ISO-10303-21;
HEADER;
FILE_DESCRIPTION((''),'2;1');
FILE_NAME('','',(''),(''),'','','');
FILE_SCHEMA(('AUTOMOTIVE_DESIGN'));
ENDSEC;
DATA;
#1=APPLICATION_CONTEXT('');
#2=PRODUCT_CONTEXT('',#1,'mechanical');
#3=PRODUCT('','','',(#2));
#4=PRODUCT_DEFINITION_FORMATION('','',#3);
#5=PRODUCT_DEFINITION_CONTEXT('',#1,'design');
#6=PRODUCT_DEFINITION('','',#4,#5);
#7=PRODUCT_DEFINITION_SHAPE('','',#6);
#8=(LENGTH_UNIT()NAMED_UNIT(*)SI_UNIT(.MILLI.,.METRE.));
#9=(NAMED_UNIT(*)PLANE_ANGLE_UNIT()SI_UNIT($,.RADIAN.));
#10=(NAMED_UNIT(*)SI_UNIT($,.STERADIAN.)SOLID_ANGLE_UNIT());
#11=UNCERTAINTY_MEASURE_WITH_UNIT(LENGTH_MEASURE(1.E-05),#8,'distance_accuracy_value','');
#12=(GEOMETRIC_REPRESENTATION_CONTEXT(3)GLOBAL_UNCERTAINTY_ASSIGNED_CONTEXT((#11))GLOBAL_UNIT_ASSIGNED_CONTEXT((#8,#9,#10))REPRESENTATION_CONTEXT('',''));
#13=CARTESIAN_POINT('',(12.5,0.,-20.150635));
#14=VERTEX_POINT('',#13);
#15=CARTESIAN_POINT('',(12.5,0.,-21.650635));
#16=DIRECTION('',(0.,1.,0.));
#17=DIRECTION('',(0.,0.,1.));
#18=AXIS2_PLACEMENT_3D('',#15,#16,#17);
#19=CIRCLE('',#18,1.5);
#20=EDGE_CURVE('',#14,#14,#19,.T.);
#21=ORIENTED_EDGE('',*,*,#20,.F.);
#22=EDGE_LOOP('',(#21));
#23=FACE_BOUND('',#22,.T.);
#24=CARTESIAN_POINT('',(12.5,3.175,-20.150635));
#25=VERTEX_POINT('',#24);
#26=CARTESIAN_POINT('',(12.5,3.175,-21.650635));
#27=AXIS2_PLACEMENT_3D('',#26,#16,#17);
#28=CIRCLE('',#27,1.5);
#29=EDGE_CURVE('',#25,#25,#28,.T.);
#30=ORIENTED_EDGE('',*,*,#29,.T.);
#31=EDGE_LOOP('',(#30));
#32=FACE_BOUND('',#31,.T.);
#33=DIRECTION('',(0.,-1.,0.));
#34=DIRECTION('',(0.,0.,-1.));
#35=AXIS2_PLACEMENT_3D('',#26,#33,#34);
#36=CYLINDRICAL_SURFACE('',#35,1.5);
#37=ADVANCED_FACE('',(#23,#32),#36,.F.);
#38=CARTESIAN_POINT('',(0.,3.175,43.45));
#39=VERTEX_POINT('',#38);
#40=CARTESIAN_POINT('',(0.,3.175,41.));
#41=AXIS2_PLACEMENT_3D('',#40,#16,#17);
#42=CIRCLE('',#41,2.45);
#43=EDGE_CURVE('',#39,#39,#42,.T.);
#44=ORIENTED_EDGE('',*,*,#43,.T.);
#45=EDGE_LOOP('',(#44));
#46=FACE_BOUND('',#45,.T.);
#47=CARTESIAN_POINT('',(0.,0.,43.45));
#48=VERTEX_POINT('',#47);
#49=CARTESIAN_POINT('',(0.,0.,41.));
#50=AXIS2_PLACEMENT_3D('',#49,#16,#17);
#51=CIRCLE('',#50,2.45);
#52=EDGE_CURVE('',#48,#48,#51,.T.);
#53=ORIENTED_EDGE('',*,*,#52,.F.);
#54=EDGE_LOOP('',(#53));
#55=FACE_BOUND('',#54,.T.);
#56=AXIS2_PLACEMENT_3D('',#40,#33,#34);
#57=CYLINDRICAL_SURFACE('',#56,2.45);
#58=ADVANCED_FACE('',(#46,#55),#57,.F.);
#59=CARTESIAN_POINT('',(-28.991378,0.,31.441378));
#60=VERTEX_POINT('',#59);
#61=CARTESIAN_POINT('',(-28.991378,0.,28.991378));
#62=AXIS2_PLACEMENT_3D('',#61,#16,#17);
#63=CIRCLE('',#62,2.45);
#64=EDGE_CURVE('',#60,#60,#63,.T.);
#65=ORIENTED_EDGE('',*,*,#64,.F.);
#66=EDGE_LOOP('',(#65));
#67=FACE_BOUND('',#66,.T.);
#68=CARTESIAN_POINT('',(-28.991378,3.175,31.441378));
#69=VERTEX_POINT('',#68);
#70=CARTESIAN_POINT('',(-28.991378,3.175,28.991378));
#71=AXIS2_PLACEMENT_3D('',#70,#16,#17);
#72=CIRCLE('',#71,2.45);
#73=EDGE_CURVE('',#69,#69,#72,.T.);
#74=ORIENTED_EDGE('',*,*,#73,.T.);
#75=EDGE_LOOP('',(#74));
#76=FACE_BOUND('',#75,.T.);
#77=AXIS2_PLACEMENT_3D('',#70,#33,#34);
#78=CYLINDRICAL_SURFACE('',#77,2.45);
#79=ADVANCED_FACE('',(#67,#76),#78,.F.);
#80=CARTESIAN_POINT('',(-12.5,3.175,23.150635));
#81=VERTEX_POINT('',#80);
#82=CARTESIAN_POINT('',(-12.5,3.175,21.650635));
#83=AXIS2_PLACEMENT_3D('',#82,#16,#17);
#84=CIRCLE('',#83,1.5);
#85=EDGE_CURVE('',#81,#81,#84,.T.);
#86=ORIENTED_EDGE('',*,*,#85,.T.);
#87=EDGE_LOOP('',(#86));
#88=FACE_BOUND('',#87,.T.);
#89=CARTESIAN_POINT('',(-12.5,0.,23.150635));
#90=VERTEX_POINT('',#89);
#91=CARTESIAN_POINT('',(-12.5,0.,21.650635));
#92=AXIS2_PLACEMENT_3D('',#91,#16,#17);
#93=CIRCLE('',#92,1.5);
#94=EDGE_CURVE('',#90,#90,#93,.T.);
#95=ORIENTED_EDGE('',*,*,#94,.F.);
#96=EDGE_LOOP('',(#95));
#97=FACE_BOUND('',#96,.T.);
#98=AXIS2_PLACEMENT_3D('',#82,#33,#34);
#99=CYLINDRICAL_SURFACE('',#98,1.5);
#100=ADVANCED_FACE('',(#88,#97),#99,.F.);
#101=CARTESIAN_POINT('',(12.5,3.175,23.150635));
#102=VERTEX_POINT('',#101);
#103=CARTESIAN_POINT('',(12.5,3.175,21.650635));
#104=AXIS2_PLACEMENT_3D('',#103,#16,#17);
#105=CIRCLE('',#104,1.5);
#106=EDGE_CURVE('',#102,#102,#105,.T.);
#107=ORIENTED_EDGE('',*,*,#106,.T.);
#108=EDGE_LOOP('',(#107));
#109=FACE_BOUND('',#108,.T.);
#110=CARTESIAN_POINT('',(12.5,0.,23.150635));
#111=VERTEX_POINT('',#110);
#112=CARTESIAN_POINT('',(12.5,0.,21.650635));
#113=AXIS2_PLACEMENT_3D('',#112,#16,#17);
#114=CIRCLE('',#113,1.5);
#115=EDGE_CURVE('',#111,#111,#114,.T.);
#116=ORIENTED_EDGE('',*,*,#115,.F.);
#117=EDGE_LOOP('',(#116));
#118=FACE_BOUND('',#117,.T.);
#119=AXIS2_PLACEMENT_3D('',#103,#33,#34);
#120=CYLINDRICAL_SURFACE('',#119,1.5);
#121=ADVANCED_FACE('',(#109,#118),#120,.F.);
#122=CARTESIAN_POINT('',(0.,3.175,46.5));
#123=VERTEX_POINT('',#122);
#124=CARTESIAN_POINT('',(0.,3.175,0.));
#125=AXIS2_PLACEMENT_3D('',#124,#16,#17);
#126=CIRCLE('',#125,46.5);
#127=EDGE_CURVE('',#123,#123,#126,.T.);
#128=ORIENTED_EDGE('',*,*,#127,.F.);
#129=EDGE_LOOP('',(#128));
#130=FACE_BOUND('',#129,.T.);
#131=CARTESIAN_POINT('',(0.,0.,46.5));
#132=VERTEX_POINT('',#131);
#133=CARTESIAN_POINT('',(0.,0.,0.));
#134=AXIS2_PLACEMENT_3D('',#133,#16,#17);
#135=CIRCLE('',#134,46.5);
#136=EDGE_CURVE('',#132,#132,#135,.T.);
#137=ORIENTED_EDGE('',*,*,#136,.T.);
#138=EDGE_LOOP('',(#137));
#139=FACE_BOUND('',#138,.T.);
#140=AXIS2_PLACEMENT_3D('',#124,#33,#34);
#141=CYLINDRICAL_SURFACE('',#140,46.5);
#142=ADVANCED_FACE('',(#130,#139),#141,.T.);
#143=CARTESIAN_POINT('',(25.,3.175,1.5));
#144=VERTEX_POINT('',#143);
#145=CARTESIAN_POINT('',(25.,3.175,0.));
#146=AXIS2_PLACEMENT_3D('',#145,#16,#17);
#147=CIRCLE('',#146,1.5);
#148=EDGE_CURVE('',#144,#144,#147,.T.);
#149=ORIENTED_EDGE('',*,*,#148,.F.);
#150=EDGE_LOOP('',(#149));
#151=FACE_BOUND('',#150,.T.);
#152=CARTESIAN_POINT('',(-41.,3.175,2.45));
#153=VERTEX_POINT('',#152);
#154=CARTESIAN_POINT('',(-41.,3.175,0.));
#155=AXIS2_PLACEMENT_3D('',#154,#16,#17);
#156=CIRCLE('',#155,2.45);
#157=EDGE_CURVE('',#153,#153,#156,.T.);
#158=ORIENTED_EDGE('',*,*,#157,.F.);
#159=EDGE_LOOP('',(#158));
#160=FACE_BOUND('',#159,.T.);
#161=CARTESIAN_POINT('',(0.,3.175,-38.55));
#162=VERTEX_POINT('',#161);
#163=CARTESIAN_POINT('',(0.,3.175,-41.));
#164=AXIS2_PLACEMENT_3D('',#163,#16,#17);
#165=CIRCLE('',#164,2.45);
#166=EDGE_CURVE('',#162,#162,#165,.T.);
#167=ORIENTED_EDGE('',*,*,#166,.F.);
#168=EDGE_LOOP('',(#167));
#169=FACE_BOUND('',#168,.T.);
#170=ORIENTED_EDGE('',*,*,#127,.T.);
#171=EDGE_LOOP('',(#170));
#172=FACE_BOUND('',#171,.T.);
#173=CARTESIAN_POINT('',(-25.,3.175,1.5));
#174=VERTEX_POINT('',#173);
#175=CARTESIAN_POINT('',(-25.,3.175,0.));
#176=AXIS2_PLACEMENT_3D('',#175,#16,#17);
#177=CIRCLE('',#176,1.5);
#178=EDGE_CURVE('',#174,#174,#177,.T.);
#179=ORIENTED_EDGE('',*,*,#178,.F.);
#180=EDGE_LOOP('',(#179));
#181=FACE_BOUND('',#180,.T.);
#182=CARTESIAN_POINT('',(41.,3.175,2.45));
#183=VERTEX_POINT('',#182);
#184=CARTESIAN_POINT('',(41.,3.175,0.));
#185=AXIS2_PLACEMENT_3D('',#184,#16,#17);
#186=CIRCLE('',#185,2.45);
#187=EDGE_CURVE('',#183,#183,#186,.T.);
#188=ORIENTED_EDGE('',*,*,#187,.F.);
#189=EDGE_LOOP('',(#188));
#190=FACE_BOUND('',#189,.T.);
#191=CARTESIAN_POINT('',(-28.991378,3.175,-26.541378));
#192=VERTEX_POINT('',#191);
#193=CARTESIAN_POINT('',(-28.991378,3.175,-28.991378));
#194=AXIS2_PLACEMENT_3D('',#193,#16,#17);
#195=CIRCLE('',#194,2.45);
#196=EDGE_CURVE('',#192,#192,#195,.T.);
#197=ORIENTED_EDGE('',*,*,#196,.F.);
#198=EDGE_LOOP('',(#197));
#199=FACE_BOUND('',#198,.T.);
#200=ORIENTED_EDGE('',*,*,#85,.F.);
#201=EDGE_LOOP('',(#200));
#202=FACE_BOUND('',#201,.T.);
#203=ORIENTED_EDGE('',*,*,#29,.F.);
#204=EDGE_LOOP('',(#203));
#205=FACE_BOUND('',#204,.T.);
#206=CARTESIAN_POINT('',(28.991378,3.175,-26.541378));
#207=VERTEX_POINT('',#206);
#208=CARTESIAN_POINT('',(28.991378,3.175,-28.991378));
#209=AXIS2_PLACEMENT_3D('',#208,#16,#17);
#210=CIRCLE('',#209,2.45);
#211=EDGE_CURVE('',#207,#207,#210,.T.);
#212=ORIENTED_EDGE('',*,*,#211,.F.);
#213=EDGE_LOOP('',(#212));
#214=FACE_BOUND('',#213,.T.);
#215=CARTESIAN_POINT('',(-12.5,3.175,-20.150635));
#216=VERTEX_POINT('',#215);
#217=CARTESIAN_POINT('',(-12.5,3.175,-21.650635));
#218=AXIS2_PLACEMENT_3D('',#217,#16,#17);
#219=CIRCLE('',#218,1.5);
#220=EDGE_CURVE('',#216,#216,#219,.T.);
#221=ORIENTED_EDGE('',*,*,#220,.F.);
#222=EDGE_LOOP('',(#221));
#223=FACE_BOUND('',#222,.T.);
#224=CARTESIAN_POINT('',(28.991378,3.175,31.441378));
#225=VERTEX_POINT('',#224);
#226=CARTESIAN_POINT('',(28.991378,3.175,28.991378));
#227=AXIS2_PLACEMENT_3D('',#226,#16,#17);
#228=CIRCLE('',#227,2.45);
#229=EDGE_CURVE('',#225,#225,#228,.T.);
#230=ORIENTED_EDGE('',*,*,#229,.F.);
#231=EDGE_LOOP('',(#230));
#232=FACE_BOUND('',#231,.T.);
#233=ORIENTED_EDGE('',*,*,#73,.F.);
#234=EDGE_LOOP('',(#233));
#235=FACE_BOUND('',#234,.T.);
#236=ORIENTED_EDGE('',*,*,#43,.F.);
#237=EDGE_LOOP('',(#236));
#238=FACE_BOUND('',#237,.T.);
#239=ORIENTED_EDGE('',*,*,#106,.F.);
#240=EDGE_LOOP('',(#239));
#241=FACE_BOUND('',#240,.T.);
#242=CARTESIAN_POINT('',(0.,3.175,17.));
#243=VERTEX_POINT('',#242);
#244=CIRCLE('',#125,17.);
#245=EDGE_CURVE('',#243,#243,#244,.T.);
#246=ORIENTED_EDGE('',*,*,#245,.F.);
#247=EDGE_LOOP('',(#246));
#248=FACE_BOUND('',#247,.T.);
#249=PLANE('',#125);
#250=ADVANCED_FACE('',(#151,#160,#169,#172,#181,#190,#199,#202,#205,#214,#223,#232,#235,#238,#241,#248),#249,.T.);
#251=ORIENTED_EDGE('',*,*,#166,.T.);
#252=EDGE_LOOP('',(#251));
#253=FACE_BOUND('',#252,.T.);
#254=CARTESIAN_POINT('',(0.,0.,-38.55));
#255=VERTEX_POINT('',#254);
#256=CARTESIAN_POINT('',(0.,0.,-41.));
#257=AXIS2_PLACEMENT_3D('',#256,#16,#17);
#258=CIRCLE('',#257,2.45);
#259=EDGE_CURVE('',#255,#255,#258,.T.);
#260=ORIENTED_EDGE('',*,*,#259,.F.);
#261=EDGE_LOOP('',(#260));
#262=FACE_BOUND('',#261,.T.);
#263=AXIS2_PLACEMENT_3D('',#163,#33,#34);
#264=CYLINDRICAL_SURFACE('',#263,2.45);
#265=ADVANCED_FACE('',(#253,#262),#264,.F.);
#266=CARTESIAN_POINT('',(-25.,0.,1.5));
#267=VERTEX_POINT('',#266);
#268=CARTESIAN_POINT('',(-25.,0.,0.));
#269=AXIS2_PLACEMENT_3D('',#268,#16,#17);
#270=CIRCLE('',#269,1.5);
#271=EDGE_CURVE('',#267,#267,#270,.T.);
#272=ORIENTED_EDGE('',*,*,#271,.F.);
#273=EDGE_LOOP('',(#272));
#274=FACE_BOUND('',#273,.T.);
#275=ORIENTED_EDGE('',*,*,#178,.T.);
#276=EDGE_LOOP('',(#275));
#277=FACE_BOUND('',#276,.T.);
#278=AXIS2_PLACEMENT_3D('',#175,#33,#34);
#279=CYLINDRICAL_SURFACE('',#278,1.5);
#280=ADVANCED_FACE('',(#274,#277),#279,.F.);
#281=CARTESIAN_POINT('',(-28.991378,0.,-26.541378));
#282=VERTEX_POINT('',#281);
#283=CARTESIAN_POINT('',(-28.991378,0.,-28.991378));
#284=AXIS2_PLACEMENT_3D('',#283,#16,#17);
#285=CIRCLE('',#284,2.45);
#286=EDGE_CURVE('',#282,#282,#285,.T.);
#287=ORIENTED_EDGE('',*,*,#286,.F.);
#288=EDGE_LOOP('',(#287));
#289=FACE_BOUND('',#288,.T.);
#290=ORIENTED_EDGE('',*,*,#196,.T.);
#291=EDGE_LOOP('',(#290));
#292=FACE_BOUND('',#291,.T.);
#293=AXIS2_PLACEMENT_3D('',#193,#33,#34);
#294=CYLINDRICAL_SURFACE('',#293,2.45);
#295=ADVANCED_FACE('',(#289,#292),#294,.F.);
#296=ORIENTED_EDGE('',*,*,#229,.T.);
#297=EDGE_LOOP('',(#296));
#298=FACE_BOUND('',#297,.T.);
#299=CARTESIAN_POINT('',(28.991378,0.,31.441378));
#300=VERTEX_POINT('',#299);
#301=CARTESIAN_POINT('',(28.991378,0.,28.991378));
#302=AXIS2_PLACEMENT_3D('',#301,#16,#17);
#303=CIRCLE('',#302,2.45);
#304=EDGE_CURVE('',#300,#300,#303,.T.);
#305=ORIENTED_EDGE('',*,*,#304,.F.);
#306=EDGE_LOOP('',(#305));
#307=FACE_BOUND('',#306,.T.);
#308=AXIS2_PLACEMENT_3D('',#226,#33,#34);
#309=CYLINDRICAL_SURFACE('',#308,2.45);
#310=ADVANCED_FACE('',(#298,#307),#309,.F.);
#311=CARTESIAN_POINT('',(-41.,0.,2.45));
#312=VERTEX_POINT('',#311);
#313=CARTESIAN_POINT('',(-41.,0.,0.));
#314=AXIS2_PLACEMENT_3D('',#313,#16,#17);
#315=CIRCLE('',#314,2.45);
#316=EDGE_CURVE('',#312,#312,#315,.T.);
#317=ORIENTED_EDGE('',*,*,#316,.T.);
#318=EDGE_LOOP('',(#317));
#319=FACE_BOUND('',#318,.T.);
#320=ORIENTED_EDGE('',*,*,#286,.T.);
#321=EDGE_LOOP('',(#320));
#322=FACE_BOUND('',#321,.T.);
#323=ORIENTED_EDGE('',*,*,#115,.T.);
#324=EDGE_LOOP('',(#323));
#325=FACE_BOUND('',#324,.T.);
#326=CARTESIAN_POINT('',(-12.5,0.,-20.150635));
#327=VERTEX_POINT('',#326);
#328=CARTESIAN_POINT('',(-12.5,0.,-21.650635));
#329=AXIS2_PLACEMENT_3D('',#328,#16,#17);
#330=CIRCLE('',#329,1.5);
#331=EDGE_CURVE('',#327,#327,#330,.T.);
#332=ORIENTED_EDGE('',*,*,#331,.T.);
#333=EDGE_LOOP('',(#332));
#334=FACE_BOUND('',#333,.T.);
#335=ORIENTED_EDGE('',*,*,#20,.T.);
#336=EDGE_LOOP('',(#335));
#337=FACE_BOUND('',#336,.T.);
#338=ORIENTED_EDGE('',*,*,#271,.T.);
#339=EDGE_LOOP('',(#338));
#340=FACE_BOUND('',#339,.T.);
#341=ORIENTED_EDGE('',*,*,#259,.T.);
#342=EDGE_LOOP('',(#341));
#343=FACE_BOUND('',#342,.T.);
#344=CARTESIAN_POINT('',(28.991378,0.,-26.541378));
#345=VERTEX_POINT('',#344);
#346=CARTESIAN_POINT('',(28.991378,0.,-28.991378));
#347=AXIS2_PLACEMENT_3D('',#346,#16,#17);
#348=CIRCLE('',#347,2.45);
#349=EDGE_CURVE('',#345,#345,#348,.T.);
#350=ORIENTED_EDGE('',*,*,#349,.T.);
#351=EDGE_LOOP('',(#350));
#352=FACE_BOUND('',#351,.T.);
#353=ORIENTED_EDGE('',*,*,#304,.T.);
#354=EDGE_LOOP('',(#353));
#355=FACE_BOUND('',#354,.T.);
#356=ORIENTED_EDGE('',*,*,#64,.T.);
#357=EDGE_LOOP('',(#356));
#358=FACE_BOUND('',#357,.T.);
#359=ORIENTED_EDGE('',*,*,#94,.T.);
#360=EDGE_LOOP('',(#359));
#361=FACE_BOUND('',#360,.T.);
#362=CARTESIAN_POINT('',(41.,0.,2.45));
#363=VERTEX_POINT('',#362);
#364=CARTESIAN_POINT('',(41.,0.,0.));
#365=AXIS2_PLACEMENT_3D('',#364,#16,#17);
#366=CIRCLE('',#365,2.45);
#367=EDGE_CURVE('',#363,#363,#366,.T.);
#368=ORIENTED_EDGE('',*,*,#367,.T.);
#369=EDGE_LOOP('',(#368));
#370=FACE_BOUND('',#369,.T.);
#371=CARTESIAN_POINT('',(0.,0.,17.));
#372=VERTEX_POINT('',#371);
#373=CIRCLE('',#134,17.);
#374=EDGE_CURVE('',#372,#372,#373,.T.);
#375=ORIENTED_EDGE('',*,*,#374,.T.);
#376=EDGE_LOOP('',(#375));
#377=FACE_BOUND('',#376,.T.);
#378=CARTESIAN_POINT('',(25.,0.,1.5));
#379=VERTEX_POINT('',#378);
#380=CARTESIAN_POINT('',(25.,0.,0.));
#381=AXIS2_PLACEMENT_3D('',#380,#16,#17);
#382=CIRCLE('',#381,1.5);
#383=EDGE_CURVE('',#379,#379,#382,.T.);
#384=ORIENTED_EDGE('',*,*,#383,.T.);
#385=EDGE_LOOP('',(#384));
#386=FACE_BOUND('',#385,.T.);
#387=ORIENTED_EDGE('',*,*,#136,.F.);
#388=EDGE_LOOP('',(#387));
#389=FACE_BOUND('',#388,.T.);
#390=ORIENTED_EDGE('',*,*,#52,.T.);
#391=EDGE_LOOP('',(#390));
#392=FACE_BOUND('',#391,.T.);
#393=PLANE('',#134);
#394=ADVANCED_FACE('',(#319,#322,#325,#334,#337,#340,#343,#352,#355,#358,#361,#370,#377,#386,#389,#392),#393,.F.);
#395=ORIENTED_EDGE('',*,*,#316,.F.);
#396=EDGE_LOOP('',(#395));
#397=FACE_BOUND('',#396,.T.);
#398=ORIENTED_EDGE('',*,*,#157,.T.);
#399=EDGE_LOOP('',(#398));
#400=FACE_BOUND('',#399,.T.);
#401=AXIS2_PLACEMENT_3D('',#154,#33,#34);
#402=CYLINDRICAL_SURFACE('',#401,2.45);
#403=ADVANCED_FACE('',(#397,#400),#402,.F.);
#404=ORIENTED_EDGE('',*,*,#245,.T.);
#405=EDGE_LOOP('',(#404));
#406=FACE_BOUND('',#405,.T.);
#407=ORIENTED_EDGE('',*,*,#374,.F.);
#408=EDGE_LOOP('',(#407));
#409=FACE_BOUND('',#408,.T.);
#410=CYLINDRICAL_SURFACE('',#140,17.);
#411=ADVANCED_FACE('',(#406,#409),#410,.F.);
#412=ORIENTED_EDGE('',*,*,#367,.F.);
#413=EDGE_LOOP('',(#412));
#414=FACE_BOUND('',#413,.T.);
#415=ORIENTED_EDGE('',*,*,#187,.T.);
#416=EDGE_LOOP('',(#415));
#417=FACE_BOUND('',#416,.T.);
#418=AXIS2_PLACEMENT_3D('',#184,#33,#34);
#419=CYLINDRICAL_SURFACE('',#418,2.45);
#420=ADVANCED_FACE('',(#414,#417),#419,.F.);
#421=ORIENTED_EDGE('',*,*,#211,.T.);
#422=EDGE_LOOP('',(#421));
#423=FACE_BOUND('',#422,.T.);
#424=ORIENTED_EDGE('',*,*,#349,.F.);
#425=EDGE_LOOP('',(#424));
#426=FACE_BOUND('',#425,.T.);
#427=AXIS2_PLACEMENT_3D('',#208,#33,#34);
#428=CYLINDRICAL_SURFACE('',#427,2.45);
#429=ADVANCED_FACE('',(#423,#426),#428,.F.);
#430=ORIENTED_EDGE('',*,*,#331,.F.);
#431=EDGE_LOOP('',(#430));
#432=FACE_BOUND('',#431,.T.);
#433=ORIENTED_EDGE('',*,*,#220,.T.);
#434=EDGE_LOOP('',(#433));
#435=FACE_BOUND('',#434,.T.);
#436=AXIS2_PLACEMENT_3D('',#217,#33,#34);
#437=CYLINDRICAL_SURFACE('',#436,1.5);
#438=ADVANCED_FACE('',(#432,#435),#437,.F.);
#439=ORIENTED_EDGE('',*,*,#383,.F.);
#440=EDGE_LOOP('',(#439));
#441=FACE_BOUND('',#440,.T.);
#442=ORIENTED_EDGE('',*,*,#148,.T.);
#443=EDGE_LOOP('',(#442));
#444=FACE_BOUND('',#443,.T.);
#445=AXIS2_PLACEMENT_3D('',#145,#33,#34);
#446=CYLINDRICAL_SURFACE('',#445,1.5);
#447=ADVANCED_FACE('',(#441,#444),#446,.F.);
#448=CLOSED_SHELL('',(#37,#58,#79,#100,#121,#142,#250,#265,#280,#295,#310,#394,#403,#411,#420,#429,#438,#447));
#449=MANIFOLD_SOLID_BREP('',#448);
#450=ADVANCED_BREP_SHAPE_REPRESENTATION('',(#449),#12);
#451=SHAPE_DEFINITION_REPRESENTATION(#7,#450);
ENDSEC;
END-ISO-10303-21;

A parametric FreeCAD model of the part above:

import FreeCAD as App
import Part
import Sketcher
from FreeCAD import Vector

doc = App.newDocument("Part")
body = doc.addObject("PartDesign::Body", "Body")

sketch1 = body.newObject("Sketcher::SketchObject", "Sketch")
sketch1.AttachmentSupport = (doc.getObject("XZ_Plane"), [""])
sketch1.MapMode = "FlatFace"
sketch1.addGeometry([
    Part.Circle(Vector(0, 0, 0), Vector(0, 0, 1), 46.5),
    Part.Circle(Vector(-29, -29, 0), Vector(0, 0, 1), 2.5),
    Part.Circle(Vector(0, -41, 0), Vector(0, 0, 1), 2.5),
    Part.Circle(Vector(-12.5, -21.7, 0), Vector(0, 0, 1), 1.5),
    Part.Circle(Vector(-41, 0, 0), Vector(0, 0, 1), 2.5),
    Part.Circle(Vector(-25, 0, 0), Vector(0, 0, 1), 1.5),
    Part.Circle(Vector(-29, 29, 0), Vector(0, 0, 1), 2.5),
    Part.Circle(Vector(-12.5, 21.7, 0), Vector(0, 0, 1), 1.5),
    Part.Circle(Vector(12.5, -21.7, 0), Vector(0, 0, 1), 1.5),
    Part.Circle(Vector(29, -29, 0), Vector(0, 0, 1), 2.5),
    Part.Circle(Vector(25, 0, 0), Vector(0, 0, 1), 1.5),
    Part.Circle(Vector(41, 0, 0), Vector(0, 0, 1), 2.5),
    Part.Circle(Vector(0, 0, 0), Vector(0, 0, 1), 17),
    Part.Circle(Vector(12.5, 21.7, 0), Vector(0, 0, 1), 1.5),
    Part.Circle(Vector(0, 41, 0), Vector(0, 0, 1), 2.5),
    Part.Circle(Vector(29, 29, 0), Vector(0, 0, 1), 2.5),
], False)
sketch1.addConstraint([
    Sketcher.Constraint("Coincident", 0, 3, -1, 1),
    Sketcher.Constraint("Coincident", 12, 3, -1, 1),
    Sketcher.Constraint("Equal", 1, 2),
    Sketcher.Constraint("Equal", 2, 4),
    Sketcher.Constraint("Equal", 3, 5),
    Sketcher.Constraint("Equal", 4, 6),
    Sketcher.Constraint("Equal", 5, 7),
    Sketcher.Constraint("Equal", 7, 8),
    Sketcher.Constraint("Equal", 6, 9),
    Sketcher.Constraint("Equal", 8, 10),
    Sketcher.Constraint("Equal", 9, 11),
    Sketcher.Constraint("Equal", 10, 13),
    Sketcher.Constraint("Equal", 11, 14),
    Sketcher.Constraint("Equal", 14, 15),
    Sketcher.Constraint("Symmetric", 7, 3, 8, 3, -1, 1),
    Sketcher.Constraint("Symmetric", 6, 3, 9, 3, -1, 1),
    Sketcher.Constraint("Symmetric", 5, 3, 10, 3, -1, 1),
    Sketcher.Constraint("Symmetric", 4, 3, 11, 3, -1, 1),
    Sketcher.Constraint("Symmetric", 3, 3, 13, 3, -1, 1),
    Sketcher.Constraint("Symmetric", 2, 3, 14, 3, -1, 1),
    Sketcher.Constraint("Symmetric", 1, 3, 15, 3, -1, 1),
    Sketcher.Constraint("Symmetric", 3, 3, 8, 3, -2),
    Sketcher.Constraint("Symmetric", 1, 3, 9, 3, -2),
    Sketcher.Constraint("PointOnObject", 2, 3, -2),
    Sketcher.Constraint("PointOnObject", 4, 3, -1),
    Sketcher.Constraint("PointOnObject", 5, 3, -1),
    Sketcher.Constraint("Diameter", 0, 93.0),
    Sketcher.Constraint("Diameter", 3, 3.0),
    Sketcher.Constraint("Diameter", 12, 34.0),
    Sketcher.Constraint("Diameter", 1, 4.9),
    Sketcher.Constraint("DistanceY", 2, 3, -1, 1, 41.0),
    Sketcher.Constraint("DistanceX", 4, 3, -1, 1, 41.0),
    Sketcher.Constraint("DistanceX", 5, 3, -1, 1, 25.0),
    Sketcher.Constraint("DistanceX", 3, 3, 8, 3, 25.0),
    Sketcher.Constraint("DistanceX", 1, 3, -1, 1, 28.991378),
    Sketcher.Constraint("DistanceY", 1, 3, -1, 1, 28.991378),
    Sketcher.Constraint("DistanceY", 3, 3, 7, 3, 43.30127),
])
pad1 = body.newObject("PartDesign::Pad", "Pad")
pad1.Profile = sketch1
pad1.Length = 3.175
pad1.Reversed = True

doc.recompute()
